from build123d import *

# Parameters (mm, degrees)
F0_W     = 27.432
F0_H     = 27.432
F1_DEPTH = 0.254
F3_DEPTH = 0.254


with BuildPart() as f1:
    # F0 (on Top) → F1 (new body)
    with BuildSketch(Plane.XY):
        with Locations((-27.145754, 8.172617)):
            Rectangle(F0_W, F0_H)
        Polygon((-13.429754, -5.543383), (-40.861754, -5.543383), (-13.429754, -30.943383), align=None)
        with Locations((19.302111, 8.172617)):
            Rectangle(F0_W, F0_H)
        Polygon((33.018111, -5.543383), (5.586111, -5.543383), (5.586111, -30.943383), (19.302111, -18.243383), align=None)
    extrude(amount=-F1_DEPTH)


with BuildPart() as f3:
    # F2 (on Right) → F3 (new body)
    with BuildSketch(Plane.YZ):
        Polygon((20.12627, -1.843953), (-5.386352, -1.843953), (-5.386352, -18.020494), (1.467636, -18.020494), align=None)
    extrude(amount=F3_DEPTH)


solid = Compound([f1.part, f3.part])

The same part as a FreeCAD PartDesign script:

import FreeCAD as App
import Part
import Sketcher
from FreeCAD import Vector
Q = App.Units.Quantity


def add_polygon(sketch, points):
    """Adds a closed chain of lines whose ends are joined by coincident constraints."""
    first, n = sketch.GeometryCount, len(points)
    for a, b in zip(points, points[1:] + points[:1]):
        sketch.addGeometry(Part.LineSegment(App.Vector(*a, 0), App.Vector(*b, 0)), False)
    for i in range(n):
        sketch.addConstraint(Sketcher.Constraint("Coincident", first + i, 2, first + (i + 1) % n, 1))

doc = App.newDocument("Part")
body = doc.addObject("PartDesign::Body", "Body")
body.AllowCompound = True

sketch1 = doc.addObject("Sketcher::SketchObject", "Sketch")
body.addObject(sketch1)
sketch1.AttachmentSupport = (doc.XY_Plane, [""])
sketch1.MapMode = "FlatFace"
add_polygon(sketch1, [(-41, 22), (-41, -6), (-13, -31), (-13, 22)])
add_polygon(sketch1, [(6, 22), (6, -31), (33, -6), (33, 22)])
sketch1.addConstraint([
    Sketcher.Constraint("Vertical", 0),
    Sketcher.Constraint("Vertical", 2),
    Sketcher.Constraint("Horizontal", 3),
    Sketcher.Constraint("Vertical", 4),
    Sketcher.Constraint("Vertical", 6),
    Sketcher.Constraint("Horizontal", 7),
    Sketcher.Constraint("Horizontal", 1, 2, 4, 2),
    Sketcher.Constraint("Horizontal", 0, 2, 5, 2),
    Sketcher.Constraint("Horizontal", 3, 2, 6, 2),
    Sketcher.Constraint("Equal", 3, 7),
    Sketcher.Constraint("Equal", 7, 0),
    Sketcher.Constraint("DistanceY", 1, 2, 0, 2, Q("1 in")),
    Sketcher.Constraint("DistanceX", 3, 2, 3, 1, Q("1.08 in")),
    Sketcher.Constraint("DistanceX", -1, 1, 4, 2, Q("5.586111 mm")),
    Sketcher.Constraint("DistanceX", 0, 2, -1, 1, Q("40.861754 mm")),
    Sketcher.Constraint("DistanceY", 0, 2, -1, 1, Q("5.543383 mm")),
])
pad1 = doc.addObject("PartDesign::Pad", "Pad")
body.addObject(pad1)
pad1.Profile = sketch1
pad1.Length = Q("0.01 in")
pad1.Reversed = True
body2 = doc.addObject("PartDesign::Body", "Body001")

sketch2 = doc.addObject("Sketcher::SketchObject", "Sketch001")
body2.addObject(sketch2)
sketch2.AttachmentSupport = (doc.getObject("YZ_Plane001"), [""])
sketch2.MapMode = "FlatFace"
add_polygon(sketch2, [(20, -2), (-5, -2), (-5, -18), (1, -18)])
sketch2.addConstraint([
    Sketcher.Constraint("Horizontal", 0),
    Sketcher.Constraint("Vertical", 1),
    Sketcher.Constraint("Horizontal", 2),
    Sketcher.Constraint("DistanceY", 1, 2, 1, 1, Q("16.176541 mm")),
    Sketcher.Constraint("DistanceX", 0, 2, 0, 1, Q("25.512622 mm")),
    Sketcher.Constraint("DistanceX", 2, 1, 2, 2, Q("6.853988 mm")),
    Sketcher.Constraint("DistanceX", 0, 2, -1, 1, Q("5.386352 mm")),
    Sketcher.Constraint("DistanceY", 0, 2, -1, 1, Q("1.843953 mm")),
])
pad2 = doc.addObject("PartDesign::Pad", "Pad001")
body2.addObject(pad2)
pad2.Profile = sketch2
pad2.Length = Q("0.01 in")

doc.recompute()
